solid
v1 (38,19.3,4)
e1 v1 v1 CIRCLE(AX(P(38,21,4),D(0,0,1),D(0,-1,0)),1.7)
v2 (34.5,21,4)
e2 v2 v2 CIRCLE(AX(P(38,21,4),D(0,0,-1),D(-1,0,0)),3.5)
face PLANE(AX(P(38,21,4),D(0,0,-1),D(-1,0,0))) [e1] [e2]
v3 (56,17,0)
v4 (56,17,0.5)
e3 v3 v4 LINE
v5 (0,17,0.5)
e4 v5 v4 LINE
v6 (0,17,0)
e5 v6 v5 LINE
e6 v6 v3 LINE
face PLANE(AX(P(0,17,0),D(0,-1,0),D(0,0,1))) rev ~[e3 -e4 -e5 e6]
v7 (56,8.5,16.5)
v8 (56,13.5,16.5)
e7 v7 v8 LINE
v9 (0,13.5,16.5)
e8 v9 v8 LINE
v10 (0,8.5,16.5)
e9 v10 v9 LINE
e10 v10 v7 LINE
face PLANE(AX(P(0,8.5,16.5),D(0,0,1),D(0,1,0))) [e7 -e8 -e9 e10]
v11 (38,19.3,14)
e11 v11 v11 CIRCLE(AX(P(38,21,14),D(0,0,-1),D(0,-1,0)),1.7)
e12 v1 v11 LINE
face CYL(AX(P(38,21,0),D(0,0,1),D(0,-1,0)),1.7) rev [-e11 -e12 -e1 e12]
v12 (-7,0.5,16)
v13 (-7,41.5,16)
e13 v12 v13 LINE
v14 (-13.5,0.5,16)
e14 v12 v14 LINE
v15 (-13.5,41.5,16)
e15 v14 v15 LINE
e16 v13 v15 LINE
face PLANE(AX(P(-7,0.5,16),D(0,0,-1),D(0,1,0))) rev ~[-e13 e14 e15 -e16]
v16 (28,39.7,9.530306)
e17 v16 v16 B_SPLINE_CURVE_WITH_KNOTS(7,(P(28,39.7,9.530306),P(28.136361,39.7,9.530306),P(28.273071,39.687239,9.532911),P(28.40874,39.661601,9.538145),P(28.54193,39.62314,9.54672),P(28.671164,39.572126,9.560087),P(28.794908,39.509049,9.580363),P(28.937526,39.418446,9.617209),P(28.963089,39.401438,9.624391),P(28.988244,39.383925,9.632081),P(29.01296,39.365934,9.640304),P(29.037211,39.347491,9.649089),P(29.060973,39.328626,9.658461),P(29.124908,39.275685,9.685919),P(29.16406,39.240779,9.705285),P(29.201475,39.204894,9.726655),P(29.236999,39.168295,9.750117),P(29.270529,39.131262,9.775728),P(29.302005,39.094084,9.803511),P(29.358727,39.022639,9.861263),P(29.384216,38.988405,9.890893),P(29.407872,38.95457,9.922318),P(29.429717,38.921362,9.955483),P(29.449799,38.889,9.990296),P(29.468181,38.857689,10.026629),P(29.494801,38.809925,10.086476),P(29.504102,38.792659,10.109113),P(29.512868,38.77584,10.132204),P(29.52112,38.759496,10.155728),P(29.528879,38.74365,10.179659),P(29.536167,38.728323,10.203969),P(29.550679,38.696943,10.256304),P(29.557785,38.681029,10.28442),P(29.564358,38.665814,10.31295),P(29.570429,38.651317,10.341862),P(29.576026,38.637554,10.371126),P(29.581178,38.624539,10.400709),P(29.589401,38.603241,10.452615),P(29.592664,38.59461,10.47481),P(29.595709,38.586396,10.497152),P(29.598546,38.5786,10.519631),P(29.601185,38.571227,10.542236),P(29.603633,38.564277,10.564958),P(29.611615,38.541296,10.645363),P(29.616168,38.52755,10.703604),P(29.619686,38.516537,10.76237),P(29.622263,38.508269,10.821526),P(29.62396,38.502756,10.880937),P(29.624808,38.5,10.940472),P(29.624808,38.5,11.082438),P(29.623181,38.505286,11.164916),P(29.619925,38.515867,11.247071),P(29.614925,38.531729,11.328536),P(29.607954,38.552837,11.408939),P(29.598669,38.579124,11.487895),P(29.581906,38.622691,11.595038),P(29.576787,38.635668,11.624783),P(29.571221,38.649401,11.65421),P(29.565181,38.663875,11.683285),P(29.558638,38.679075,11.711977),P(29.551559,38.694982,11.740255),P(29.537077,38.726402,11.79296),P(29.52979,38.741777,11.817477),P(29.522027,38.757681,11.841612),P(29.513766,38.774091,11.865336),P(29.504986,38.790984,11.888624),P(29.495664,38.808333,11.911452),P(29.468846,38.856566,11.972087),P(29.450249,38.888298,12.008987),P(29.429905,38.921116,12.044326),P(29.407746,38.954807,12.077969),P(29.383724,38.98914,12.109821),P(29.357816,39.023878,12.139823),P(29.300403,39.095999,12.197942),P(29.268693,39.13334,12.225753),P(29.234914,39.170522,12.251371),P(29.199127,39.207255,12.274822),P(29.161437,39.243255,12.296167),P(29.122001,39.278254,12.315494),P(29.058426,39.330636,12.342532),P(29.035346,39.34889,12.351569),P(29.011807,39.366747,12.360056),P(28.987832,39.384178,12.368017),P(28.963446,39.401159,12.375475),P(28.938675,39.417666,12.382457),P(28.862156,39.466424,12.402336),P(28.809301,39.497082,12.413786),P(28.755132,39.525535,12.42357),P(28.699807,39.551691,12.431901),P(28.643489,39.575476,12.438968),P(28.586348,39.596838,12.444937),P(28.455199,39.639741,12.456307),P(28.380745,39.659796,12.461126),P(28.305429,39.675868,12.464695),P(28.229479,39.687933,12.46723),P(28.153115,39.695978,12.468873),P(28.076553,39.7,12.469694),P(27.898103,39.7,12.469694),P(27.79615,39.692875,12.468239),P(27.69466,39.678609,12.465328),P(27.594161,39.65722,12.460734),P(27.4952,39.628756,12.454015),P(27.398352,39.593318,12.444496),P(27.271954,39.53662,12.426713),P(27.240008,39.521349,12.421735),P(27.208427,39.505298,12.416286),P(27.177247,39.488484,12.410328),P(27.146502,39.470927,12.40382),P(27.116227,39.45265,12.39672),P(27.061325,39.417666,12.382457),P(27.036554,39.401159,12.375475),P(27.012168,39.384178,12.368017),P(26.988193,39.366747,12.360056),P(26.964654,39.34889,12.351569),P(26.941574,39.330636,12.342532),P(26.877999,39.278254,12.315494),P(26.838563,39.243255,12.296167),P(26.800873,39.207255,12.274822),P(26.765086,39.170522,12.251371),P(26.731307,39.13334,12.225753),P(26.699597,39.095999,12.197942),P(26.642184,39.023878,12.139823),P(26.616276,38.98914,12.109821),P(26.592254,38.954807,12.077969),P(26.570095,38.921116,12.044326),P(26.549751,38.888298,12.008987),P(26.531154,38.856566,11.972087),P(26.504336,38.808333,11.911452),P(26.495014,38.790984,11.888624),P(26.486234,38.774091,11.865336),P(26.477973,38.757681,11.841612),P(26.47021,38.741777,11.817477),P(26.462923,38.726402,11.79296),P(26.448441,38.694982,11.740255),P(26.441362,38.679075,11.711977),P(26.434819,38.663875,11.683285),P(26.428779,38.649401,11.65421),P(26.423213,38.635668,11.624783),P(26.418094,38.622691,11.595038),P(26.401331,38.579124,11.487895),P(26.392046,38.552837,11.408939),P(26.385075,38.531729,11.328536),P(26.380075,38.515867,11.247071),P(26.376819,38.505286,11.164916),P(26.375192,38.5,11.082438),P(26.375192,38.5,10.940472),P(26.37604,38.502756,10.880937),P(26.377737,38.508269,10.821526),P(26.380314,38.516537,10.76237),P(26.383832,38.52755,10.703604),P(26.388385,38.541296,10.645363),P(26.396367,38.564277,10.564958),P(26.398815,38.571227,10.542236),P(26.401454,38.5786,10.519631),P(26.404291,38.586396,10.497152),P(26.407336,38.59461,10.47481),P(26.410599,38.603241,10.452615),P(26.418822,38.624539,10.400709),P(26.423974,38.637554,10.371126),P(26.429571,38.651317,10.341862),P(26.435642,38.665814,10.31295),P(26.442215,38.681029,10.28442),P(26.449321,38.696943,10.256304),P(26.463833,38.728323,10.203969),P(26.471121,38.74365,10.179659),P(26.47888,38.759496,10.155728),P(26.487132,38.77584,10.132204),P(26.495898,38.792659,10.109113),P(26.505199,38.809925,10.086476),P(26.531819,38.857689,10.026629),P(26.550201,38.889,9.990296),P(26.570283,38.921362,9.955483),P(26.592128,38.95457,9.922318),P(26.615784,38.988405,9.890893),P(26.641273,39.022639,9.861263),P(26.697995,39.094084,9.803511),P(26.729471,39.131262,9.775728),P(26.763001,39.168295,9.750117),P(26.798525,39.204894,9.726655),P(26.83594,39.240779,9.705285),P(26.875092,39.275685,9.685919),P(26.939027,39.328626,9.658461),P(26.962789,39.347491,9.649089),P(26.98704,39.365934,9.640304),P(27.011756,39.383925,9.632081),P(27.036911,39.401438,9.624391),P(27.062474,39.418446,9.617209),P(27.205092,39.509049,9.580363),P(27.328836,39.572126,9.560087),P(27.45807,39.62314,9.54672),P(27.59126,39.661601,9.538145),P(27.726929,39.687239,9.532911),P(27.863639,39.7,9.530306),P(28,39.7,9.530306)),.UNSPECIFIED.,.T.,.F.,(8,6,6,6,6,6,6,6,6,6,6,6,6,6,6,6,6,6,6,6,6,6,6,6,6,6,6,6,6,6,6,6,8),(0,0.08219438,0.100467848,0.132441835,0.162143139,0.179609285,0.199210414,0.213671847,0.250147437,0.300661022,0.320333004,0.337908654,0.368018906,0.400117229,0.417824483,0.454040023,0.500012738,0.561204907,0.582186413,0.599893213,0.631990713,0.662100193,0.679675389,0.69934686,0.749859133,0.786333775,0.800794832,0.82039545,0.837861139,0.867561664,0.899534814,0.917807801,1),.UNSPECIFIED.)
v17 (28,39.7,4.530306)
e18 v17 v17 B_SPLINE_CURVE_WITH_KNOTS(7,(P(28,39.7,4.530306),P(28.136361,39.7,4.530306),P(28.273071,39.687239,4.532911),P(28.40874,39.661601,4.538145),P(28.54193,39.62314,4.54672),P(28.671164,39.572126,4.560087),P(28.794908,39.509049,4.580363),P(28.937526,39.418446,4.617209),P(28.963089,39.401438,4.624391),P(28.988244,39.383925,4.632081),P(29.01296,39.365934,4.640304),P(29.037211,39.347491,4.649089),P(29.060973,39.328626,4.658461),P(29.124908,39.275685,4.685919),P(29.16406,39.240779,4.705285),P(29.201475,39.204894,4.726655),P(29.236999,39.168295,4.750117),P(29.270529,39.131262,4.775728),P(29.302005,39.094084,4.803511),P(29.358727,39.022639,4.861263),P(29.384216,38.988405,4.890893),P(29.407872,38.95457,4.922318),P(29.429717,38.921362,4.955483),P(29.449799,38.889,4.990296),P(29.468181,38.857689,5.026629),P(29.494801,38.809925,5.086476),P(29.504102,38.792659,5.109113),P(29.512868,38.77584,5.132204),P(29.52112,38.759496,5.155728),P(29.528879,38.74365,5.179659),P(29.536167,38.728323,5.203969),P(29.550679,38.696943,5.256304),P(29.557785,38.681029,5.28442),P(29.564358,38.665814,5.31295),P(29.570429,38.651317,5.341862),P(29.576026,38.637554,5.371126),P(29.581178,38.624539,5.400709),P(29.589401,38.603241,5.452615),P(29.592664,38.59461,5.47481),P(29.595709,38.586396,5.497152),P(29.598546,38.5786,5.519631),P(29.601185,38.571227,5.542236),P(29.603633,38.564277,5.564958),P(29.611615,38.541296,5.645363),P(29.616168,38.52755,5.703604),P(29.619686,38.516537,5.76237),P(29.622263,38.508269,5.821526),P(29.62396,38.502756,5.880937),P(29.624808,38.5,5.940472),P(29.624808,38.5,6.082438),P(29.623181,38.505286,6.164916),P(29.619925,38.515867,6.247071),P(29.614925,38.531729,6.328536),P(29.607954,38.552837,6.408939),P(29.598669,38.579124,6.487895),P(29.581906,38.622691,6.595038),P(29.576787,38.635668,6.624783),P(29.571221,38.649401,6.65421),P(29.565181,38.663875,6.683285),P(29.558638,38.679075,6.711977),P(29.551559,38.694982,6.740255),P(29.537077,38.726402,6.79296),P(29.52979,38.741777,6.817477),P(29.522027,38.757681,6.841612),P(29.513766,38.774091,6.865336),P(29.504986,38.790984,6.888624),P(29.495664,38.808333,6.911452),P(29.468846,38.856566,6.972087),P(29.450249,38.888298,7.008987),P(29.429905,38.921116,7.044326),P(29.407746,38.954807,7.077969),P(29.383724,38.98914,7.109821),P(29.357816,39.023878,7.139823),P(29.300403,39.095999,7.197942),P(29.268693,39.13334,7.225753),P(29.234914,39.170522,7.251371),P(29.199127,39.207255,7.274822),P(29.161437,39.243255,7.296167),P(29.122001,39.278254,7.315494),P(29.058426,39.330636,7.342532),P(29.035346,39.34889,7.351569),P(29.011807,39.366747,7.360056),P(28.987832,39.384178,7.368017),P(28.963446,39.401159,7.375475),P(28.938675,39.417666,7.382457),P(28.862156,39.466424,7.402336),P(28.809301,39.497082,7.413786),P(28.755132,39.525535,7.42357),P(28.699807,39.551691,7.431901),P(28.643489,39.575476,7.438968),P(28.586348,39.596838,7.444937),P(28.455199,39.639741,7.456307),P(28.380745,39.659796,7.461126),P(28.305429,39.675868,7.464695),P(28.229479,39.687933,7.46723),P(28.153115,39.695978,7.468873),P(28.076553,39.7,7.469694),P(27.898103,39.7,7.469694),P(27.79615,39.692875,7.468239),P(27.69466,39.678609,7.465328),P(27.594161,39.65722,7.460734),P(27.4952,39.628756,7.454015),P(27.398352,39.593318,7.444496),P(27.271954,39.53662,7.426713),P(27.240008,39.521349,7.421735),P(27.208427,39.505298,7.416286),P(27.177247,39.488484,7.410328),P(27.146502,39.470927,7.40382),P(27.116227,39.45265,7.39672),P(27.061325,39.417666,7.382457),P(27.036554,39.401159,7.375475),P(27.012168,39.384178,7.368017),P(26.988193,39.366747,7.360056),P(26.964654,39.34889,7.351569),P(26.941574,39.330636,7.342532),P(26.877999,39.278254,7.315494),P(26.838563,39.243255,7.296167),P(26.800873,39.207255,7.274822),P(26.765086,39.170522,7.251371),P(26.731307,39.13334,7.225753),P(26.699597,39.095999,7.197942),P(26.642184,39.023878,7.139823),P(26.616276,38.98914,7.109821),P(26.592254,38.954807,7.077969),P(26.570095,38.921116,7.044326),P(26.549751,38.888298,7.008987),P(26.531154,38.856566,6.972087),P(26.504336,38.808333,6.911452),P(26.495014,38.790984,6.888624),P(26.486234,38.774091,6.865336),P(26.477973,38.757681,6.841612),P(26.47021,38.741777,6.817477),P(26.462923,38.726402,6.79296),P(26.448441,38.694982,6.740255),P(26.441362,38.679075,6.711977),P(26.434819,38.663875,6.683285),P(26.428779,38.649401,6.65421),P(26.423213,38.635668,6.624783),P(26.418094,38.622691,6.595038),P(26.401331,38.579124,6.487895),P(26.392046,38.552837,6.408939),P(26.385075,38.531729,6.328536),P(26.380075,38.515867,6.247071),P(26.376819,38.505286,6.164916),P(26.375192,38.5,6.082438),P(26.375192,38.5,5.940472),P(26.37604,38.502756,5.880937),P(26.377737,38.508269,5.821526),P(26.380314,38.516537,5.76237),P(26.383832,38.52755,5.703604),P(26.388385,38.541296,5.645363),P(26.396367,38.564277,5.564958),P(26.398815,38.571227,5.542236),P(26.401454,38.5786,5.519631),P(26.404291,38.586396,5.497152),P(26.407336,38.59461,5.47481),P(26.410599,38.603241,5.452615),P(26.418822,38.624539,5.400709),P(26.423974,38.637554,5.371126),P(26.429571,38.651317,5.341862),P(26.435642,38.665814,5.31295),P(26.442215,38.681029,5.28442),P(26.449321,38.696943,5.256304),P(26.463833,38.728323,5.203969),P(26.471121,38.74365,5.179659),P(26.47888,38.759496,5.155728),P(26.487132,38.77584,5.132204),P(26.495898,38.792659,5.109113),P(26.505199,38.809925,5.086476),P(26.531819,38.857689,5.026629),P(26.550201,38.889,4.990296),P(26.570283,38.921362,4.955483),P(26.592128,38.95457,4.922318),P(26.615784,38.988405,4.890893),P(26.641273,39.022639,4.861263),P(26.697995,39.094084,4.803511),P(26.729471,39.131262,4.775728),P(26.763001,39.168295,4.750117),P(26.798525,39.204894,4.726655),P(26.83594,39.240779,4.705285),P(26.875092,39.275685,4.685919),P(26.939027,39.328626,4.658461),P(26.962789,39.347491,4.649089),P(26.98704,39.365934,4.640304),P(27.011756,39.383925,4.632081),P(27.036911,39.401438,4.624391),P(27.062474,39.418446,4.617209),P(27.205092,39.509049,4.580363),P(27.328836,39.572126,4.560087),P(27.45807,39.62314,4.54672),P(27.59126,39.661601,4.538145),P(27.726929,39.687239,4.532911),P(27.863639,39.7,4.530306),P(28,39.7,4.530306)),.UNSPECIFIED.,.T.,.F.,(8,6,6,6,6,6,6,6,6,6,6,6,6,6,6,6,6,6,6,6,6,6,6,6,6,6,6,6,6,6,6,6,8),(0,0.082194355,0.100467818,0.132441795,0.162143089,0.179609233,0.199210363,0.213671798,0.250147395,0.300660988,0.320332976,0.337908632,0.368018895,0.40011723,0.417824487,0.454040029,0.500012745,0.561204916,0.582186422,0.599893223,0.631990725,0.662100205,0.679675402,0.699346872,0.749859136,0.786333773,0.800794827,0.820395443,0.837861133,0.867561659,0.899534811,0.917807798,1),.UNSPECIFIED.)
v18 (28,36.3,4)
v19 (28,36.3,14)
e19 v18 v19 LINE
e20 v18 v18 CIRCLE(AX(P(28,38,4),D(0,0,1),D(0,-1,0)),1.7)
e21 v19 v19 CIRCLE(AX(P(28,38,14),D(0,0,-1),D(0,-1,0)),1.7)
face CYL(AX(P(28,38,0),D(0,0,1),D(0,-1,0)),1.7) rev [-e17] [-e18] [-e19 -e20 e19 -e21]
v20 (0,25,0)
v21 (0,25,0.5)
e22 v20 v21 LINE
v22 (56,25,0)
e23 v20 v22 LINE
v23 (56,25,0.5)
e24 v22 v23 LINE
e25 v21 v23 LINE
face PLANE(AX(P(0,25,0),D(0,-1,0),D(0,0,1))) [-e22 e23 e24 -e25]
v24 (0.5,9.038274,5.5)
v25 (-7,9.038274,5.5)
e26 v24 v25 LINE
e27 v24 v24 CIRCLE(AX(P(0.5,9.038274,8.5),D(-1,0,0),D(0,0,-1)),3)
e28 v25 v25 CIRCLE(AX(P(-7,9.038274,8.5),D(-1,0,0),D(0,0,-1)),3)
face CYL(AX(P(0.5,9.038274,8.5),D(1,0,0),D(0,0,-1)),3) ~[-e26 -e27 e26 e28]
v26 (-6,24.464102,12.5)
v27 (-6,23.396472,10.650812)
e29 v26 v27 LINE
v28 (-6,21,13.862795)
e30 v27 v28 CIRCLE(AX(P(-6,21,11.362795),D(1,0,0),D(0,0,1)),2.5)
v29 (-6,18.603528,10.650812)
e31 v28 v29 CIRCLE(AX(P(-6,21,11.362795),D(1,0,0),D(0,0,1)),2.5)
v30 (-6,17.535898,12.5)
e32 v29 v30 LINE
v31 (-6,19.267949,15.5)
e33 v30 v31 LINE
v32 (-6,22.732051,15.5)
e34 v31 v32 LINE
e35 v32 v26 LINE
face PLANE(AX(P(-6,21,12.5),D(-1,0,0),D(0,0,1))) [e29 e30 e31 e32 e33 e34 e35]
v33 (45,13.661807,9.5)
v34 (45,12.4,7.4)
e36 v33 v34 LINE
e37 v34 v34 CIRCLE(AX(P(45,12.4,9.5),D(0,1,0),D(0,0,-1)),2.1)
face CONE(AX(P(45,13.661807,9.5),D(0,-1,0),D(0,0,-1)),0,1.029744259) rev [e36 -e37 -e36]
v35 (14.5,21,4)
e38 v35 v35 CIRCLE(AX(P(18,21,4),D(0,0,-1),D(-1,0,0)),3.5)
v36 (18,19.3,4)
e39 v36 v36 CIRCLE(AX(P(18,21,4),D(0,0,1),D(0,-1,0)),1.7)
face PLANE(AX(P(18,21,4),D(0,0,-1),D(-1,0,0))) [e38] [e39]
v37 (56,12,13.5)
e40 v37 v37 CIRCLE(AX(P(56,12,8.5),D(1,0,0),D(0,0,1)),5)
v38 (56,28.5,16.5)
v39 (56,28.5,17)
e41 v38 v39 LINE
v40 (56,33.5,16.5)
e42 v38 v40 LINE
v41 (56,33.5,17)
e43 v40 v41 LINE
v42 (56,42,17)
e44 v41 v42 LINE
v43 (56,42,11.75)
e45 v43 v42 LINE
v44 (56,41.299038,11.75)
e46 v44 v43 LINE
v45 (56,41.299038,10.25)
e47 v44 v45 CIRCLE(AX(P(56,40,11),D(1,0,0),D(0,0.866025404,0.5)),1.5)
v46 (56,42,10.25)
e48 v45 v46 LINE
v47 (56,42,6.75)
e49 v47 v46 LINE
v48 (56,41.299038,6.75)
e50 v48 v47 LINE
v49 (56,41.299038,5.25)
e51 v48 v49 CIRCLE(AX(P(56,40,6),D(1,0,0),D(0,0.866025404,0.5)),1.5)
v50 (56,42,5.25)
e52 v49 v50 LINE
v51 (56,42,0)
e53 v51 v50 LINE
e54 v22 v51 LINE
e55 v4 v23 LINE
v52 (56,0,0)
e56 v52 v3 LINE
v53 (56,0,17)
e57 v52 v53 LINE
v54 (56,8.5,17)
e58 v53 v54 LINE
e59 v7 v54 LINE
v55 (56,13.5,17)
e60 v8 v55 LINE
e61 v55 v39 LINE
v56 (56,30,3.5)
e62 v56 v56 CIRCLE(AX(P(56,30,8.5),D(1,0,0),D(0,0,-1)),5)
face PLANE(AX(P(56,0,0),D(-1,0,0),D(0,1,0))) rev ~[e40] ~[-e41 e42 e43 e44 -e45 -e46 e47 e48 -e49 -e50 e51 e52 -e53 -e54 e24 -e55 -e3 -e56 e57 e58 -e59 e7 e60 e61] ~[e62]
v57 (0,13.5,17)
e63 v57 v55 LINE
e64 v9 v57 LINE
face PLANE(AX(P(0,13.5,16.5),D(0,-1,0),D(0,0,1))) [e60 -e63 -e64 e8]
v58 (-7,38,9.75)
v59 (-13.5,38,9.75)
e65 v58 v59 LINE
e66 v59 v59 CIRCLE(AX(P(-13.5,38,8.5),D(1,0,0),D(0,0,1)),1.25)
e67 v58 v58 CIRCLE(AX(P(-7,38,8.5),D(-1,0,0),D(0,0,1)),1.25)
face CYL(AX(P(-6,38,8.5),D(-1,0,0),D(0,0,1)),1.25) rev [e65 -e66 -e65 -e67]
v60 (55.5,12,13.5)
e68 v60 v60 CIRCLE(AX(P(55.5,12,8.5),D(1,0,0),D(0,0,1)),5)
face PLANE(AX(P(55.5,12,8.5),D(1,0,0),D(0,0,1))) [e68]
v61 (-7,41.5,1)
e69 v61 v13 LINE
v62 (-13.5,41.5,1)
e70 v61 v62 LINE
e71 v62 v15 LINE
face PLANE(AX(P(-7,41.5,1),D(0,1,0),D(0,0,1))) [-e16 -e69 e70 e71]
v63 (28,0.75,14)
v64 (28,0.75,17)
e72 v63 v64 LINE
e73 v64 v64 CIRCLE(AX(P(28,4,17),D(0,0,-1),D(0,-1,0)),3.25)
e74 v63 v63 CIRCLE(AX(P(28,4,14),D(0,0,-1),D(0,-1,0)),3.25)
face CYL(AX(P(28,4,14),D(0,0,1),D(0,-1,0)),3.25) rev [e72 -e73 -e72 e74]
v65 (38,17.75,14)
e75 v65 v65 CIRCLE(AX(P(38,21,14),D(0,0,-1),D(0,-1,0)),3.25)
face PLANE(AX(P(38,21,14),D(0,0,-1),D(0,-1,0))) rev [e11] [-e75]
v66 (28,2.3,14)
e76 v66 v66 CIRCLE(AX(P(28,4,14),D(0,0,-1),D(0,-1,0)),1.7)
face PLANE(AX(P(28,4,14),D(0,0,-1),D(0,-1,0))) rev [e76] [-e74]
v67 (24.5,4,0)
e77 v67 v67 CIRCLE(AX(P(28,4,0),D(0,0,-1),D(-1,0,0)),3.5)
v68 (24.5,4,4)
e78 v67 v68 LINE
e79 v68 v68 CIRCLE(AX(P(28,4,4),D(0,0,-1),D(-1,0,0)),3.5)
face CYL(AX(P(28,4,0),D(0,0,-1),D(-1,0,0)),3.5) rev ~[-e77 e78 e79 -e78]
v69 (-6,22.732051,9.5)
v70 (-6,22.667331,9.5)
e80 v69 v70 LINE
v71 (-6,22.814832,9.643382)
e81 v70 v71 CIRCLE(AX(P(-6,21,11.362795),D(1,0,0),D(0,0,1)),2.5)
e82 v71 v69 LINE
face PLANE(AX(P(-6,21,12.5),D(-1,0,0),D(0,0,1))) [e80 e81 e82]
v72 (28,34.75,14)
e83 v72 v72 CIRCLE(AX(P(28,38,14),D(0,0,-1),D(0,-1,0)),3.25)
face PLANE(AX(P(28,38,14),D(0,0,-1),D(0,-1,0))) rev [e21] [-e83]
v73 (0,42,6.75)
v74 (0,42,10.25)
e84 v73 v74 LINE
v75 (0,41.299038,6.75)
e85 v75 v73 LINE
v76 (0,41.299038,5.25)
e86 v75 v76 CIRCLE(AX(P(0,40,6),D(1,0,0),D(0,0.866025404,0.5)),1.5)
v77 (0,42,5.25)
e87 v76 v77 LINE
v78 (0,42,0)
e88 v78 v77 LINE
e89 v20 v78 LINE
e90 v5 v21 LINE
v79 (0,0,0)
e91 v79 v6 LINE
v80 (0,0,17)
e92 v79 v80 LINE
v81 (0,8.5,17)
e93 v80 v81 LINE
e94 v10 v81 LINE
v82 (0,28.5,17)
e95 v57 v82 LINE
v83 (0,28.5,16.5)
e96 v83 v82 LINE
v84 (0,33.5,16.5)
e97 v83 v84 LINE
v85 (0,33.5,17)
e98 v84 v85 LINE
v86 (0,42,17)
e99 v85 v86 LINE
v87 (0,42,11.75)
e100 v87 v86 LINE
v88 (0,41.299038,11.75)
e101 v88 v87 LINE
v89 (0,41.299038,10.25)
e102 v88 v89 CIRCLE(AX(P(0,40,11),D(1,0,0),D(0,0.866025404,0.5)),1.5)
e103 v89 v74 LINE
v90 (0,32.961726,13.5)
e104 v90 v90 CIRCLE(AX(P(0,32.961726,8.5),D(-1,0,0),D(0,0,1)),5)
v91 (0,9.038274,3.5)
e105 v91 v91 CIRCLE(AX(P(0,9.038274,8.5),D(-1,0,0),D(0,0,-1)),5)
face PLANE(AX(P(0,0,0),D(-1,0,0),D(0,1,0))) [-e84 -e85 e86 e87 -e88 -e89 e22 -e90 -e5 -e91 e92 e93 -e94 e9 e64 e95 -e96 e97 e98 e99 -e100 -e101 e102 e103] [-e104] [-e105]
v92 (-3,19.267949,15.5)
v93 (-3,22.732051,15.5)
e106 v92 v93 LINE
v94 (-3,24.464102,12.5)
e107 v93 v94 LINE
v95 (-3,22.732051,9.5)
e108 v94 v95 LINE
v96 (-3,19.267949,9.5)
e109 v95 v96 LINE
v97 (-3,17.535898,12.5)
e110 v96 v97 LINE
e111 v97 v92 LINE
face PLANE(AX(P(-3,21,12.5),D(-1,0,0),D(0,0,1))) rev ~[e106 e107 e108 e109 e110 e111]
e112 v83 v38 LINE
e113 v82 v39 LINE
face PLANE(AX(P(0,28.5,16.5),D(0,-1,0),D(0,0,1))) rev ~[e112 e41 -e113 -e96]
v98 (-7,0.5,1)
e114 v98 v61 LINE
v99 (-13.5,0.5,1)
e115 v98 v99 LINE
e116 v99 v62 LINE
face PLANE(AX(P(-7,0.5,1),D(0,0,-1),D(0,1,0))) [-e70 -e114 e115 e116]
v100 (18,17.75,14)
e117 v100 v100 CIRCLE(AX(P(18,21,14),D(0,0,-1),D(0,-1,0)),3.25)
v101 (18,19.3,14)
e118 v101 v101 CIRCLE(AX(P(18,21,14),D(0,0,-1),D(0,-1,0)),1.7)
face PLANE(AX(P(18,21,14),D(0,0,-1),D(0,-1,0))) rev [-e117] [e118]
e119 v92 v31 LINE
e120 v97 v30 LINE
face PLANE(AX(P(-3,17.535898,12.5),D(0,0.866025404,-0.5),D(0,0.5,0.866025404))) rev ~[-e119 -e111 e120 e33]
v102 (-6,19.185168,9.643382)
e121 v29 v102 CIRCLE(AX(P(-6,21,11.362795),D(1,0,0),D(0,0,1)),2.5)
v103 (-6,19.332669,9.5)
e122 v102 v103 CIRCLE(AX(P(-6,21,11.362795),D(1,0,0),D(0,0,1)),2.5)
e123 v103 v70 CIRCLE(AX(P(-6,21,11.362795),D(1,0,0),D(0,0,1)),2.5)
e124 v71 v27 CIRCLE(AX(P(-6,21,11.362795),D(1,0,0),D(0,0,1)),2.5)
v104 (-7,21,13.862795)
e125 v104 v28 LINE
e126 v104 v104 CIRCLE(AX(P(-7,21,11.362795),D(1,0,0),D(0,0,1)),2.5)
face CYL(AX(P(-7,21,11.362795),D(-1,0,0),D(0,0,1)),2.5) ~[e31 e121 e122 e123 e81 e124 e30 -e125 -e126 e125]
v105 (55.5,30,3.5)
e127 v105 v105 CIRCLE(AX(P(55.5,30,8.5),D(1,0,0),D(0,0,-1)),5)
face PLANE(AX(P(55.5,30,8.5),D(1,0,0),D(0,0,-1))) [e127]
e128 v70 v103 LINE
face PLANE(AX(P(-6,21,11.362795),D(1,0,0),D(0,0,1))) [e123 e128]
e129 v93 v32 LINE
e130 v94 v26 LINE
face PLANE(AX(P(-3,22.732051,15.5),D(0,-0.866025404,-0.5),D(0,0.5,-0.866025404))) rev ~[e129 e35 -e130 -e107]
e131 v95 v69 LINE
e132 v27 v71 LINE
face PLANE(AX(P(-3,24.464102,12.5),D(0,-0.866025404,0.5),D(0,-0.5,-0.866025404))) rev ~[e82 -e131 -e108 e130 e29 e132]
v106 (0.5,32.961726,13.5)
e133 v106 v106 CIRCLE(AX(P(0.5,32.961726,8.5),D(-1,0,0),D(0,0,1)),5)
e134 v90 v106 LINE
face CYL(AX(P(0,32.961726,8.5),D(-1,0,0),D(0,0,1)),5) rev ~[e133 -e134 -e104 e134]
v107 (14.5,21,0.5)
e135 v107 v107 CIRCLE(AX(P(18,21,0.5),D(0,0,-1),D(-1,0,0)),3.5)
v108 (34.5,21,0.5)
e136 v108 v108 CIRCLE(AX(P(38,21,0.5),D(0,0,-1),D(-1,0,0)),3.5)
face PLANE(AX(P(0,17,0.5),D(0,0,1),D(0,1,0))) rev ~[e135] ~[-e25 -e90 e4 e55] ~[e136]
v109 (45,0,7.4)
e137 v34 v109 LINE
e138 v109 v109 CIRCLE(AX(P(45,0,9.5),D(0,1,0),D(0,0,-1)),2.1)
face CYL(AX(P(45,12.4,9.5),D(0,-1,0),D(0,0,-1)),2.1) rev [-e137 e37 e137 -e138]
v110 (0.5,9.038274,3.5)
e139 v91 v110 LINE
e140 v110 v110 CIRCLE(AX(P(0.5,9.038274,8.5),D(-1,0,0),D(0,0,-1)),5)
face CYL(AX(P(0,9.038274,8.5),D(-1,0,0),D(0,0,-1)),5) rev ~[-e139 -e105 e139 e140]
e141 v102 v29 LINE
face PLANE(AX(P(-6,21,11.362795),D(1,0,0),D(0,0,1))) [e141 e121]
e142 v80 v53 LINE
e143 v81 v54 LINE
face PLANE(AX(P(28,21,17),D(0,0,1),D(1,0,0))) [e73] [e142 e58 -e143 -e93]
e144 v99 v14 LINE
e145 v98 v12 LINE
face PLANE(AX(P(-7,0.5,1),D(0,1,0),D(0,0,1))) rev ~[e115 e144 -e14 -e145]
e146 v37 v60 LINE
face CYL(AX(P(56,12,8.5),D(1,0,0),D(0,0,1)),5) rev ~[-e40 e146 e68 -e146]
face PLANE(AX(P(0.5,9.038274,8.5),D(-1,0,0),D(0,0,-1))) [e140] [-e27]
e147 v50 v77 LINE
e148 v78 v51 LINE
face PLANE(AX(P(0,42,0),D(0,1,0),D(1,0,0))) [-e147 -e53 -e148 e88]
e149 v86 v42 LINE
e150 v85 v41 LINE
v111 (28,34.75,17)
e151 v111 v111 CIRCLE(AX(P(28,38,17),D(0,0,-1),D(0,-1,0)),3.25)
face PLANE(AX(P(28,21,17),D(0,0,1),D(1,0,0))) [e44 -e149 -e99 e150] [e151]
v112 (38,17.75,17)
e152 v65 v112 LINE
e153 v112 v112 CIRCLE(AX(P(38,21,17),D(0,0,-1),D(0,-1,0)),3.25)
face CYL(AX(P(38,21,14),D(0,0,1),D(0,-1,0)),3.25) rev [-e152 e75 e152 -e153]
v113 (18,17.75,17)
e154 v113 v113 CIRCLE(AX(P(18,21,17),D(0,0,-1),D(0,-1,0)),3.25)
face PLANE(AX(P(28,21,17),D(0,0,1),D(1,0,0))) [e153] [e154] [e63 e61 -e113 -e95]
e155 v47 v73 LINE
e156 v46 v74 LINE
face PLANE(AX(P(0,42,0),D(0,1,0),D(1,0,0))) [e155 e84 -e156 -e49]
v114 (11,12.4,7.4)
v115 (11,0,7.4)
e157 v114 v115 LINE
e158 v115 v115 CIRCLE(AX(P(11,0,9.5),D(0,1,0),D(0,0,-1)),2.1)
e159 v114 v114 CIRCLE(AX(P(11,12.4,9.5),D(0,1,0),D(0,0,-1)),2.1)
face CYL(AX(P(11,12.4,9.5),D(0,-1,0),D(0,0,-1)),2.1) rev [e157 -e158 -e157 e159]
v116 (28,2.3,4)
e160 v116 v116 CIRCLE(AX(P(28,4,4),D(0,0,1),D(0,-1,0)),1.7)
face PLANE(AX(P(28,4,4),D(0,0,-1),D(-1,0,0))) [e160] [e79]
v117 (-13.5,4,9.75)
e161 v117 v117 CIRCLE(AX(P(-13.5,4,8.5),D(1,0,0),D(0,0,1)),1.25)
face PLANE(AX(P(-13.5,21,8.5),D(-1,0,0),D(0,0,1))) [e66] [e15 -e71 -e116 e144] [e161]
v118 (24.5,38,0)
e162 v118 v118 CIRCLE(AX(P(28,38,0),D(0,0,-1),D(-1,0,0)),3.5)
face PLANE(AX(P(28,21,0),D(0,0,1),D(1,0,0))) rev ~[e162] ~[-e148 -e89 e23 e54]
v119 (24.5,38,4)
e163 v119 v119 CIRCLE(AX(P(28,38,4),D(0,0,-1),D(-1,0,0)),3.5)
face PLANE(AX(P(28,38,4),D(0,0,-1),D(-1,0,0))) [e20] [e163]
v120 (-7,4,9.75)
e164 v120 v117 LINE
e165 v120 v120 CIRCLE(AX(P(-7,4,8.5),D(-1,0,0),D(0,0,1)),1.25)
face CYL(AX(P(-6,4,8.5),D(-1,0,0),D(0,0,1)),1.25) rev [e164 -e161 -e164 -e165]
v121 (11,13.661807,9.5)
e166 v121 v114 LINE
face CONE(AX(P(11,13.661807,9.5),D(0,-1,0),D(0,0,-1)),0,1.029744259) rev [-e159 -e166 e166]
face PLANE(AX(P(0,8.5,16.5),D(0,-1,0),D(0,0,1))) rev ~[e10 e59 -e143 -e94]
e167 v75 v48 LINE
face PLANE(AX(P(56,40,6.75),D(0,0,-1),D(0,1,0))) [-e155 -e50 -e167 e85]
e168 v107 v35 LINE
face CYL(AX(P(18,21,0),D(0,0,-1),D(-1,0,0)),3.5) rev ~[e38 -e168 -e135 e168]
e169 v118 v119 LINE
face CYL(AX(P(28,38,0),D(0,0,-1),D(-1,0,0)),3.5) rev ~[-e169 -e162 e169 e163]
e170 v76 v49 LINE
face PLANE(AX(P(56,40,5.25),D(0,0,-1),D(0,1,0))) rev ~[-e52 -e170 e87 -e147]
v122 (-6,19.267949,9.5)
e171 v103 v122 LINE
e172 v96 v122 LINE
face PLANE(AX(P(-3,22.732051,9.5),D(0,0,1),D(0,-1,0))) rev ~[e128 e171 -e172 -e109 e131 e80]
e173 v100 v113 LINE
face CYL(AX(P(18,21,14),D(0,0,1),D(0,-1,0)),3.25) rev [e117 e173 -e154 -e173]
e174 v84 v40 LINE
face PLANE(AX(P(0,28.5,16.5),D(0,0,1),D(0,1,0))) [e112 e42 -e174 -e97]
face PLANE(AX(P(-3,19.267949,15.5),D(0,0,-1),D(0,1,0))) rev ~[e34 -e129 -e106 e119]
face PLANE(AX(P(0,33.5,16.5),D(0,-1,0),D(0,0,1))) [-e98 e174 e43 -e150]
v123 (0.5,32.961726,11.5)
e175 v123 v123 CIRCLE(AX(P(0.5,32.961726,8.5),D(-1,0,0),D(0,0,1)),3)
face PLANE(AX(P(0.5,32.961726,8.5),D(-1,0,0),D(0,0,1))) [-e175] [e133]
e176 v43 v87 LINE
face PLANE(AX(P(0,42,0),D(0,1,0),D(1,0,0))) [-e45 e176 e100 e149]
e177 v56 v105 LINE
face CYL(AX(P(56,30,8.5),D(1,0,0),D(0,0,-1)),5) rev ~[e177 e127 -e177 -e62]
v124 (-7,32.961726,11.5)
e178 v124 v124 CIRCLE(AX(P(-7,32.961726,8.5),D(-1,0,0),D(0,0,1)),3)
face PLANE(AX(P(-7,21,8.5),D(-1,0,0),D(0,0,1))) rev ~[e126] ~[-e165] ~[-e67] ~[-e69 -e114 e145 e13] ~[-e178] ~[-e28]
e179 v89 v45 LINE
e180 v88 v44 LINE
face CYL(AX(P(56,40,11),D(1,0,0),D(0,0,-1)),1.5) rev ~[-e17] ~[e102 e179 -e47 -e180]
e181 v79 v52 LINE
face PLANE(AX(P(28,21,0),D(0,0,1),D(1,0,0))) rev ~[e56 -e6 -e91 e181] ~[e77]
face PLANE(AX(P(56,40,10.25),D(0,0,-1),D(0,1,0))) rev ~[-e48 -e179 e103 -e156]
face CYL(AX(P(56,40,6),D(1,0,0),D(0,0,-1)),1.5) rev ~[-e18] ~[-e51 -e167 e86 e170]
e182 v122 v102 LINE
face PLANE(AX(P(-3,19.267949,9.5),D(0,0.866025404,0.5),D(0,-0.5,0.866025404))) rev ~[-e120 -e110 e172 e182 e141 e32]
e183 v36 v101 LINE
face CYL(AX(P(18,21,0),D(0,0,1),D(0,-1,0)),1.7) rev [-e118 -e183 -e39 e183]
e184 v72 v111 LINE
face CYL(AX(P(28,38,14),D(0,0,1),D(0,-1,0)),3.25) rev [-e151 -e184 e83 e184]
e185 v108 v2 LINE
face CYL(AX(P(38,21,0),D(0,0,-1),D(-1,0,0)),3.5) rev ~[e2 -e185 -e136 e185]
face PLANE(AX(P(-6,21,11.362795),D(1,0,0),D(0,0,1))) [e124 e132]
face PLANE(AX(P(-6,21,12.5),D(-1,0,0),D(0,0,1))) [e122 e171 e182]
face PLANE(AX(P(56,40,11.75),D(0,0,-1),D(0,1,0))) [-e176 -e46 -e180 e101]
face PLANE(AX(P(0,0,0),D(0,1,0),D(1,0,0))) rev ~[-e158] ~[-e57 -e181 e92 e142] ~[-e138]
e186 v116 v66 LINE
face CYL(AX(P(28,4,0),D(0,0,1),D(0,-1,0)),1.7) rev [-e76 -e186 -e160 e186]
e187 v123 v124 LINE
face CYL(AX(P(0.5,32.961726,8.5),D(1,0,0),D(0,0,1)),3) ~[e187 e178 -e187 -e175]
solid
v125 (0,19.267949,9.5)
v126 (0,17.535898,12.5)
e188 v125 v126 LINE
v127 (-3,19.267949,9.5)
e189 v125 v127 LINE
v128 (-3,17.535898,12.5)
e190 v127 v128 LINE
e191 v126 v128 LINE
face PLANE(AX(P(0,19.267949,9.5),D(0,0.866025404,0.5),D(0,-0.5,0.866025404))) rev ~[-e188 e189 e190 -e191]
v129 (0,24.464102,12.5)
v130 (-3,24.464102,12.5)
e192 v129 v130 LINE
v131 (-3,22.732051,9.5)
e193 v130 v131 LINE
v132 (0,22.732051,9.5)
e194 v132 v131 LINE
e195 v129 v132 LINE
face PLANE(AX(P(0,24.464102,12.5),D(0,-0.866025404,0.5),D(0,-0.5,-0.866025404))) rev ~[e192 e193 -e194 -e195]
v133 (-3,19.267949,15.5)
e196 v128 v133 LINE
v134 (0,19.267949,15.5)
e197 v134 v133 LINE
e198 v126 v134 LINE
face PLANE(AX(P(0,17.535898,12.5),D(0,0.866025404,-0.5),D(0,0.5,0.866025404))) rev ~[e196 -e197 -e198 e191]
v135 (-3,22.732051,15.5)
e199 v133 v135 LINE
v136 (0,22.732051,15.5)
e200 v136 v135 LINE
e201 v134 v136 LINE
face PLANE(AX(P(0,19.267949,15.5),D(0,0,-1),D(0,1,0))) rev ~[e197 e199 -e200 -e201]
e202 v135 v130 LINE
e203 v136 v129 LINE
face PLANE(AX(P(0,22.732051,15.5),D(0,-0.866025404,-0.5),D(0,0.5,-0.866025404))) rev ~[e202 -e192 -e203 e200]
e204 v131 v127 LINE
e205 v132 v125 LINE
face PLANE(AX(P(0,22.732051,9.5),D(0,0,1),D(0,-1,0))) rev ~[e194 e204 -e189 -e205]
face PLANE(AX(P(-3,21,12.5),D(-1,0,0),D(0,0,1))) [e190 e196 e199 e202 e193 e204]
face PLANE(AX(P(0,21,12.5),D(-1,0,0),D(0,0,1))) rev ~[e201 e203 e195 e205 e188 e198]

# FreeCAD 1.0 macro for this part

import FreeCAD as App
import Part
import Sketcher
from FreeCAD import Vector
Q = App.Units.Quantity


def add_polygon(sketch, points):
    """Adds a closed chain of lines whose ends are joined by coincident constraints."""
    first, n = sketch.GeometryCount, len(points)
    for a, b in zip(points, points[1:] + points[:1]):
        sketch.addGeometry(Part.LineSegment(App.Vector(*a, 0), App.Vector(*b, 0)), False)
    for i in range(n):
        sketch.addConstraint(Sketcher.Constraint("Coincident", first + i, 2, first + (i + 1) % n, 1))

doc = App.newDocument("Part")
params = doc.addObject("Spreadsheet::Sheet", "Params")
for row, (alias, value) in enumerate([
    ("sketch1_width", "56 mm"),
    ("sketch1_height", "42 mm"),
    ("pad1_length", "17 mm"),
    ("sketch2_diameter", "10 mm"),
    ("pocket1_length", "0.5 mm"),
    ("sketch3_diameter", "10 mm"),
    ("pocket2_length", "0.5 mm"),
    ("sketch4_diameter", "6 mm"),
    ("pad2_length", "7.5 mm"),
    ("sketch5_width", "41 mm"),
    ("sketch5_height", "15 mm"),
    ("pad3_length", "6.5 mm"),
    ("pad4_length", "3 mm"),
    ("pad5_length", "3 mm"),
    ("sketch8_diameter", "5 mm"),
    ("pad6_length", "1 mm"),
    ("sketch9_width", "7.5 mm"),
    ("sketch9_height", "1.25 mm"),
    ("groove_angle", "360 deg"),
    ("linearpattern_pitch", "34 mm"),
    ("sketch10_diameter", "3 mm"),
    ("pocket3_length", "56 mm"),
    ("sketch11_width", "2 mm"),
    ("sketch11_height", "1.5 mm"),
    ("pocket4_length", "56 mm"),
    ("sketch12_width", "12.4 mm"),
    ("sketch12_height", "2.1 mm"),
    ("groove2_angle", "360 deg"),
    ("linearpattern2_pitch", "34 mm"),
    ("sketch13_width", "8 mm"),
    ("sketch13_width2", "5 mm"),
    ("sketch13_height", "0.5 mm"),
    ("pocket5_length", "56 mm"),
    ("sketch14_height", "17 mm"),
    ("sketch14_height2", "3 mm"),
    ("sketch14_width", "1.7 mm"),
    ("sketch14_width2", "3.25 mm"),
    ("groove3_angle", "360 deg"),
    ("linearpattern3_pitch", "19.723083 mm"),
    ("linearpattern4_pitch", "19.723083 mm"),
    ("linearpattern5_pitch", "20 mm"),
    ("sketch15_diameter", "7 mm"),
    ("pocket6_length", "4 mm"),
], start=1):
    params.set(f"A{row}", alias)
    params.set(f"B{row}", "=" + value)
    params.setAlias(f"B{row}", alias)

body = doc.addObject("PartDesign::Body", "Body")

sketch1 = body.newObject("Sketcher::SketchObject", "Sketch")
sketch1.AttachmentSupport = (doc.getObject("XY_Plane"), [""])
sketch1.MapMode = "FlatFace"
add_polygon(sketch1, [(0, 42), (0, 0), (56, 0), (56, 42)])
sketch1.addConstraint([
    Sketcher.Constraint("Vertical", 0),
    Sketcher.Constraint("Horizontal", 1),
    Sketcher.Constraint("Vertical", 2),
    Sketcher.Constraint("Horizontal", 3),
    Sketcher.Constraint("Coincident", 0, 2, -1, 1),
    Sketcher.Constraint("DistanceX", 1, 1, 1, 2, Q("56 mm")),
    Sketcher.Constraint("DistanceY", 0, 2, 0, 1, Q("42 mm")),
])
sketch1.setExpression("Constraints[9]", "Params.sketch1_width")
sketch1.setExpression("Constraints[10]", "Params.sketch1_height")
pad1 = body.newObject("PartDesign::Pad", "Pad")
pad1.Profile = sketch1
pad1.setExpression("Length", "Params.pad1_length")

sketch2 = body.newObject("Sketcher::SketchObject", "Sketch001")
sketch2.AttachmentSupport = (doc.getObject("YZ_Plane"), [""])
sketch2.MapMode = "FlatFace"
sketch2.addGeometry([
    Part.Circle(Vector(33, 8, 0), Vector(0, 0, 1), 5),
    Part.Circle(Vector(9, 8, 0), Vector(0, 0, 1), 5),
], False)
sketch2.addConstraint([
    Sketcher.Constraint("Equal", 0, 1),
    Sketcher.Constraint("Horizontal", 0, 3, 1, 3),
    Sketcher.Constraint("Diameter", 0, Q("10 mm")),
    Sketcher.Constraint("DistanceY", -1, 1, 0, 3, Q("8.5 mm")),
    Sketcher.Constraint("DistanceX", 1, 3, 0, 3, Q("23.923451 mm")),
    Sketcher.Constraint("DistanceX", -1, 1, 0, 3, Q("32.961726 mm")),
])
sketch2.setExpression("Constraints[2]", "Params.sketch2_diameter")
pocket1 = body.newObject("PartDesign::Pocket", "Pocket")
pocket1.Profile = sketch2
pocket1.setExpression("Length", "Params.pocket1_length")
pocket1.Reversed = True

sketch3 = body.newObject("Sketcher::SketchObject", "Sketch002")
sketch3.AttachmentSupport = (doc.getObject("YZ_Plane"), [""])
sketch3.MapMode = "FlatFace"
sketch3.AttachmentOffset = App.Placement(Vector(0, 0, 56), App.Rotation())
sketch3.addGeometry([
    Part.Circle(Vector(30, 8, 0), Vector(0, 0, 1), 5),
    Part.Circle(Vector(12, 8, 0), Vector(0, 0, 1), 5),
], False)
sketch3.addConstraint([
    Sketcher.Constraint("Equal", 0, 1),
    Sketcher.Constraint("Horizontal", 0, 3, 1, 3),
    Sketcher.Constraint("Diameter", 0, Q("10 mm")),
    Sketcher.Constraint("DistanceX", -1, 1, 0, 3, Q("30 mm")),
    Sketcher.Constraint("DistanceX", -1, 1, 1, 3, Q("12 mm")),
    Sketcher.Constraint("DistanceY", -1, 1, 0, 3, Q("8.5 mm")),
])
sketch3.setExpression("Constraints[2]", "Params.sketch3_diameter")
pocket2 = body.newObject("PartDesign::Pocket", "Pocket001")
pocket2.Profile = sketch3
pocket2.setExpression("Length", "Params.pocket2_length")

sketch4 = body.newObject("Sketcher::SketchObject", "Sketch003")
sketch4.AttachmentSupport = (doc.getObject("YZ_Plane"), [""])
sketch4.MapMode = "FlatFace"
sketch4.AttachmentOffset = App.Placement(Vector(0, 0, 0.5), App.Rotation())
sketch4.addGeometry([
    Part.Circle(Vector(33, 8.5, 0), Vector(0, 0, 1), 3),
    Part.Circle(Vector(9, 8.5, 0), Vector(0, 0, 1), 3),
], False)
sketch4.addConstraint([
    Sketcher.Constraint("Equal", 0, 1),
    Sketcher.Constraint("Horizontal", 0, 3, 1, 3),
    Sketcher.Constraint("Diameter", 0, Q("6 mm")),
    Sketcher.Constraint("DistanceY", -1, 1, 0, 3, Q("8.5 mm")),
    Sketcher.Constraint("DistanceX", 1, 3, 0, 3, Q("23.923451 mm")),
    Sketcher.Constraint("DistanceX", -1, 1, 0, 3, Q("32.961726 mm")),
])
sketch4.setExpression("Constraints[2]", "Params.sketch4_diameter")
pad2 = body.newObject("PartDesign::Pad", "Pad001")
pad2.Profile = sketch4
pad2.setExpression("Length", "Params.pad2_length")
pad2.Reversed = True

sketch5 = body.newObject("Sketcher::SketchObject", "Sketch004")
sketch5.AttachmentSupport = (doc.getObject("YZ_Plane"), [""])
sketch5.MapMode = "FlatFace"
sketch5.AttachmentOffset = App.Placement(Vector(0, 0, -7), App.Rotation())
add_polygon(sketch5, [(42, 1), (0, 1), (0, 16), (42, 16)])
sketch5.addConstraint([
    Sketcher.Constraint("Horizontal", 0),
    Sketcher.Constraint("Vertical", 1),
    Sketcher.Constraint("Horizontal", 2),
    Sketcher.Constraint("Vertical", 3),
    Sketcher.Constraint("DistanceX", 0, 2, 0, 1, Q("41 mm")),
    Sketcher.Constraint("DistanceY", 1, 1, 1, 2, Q("15 mm")),
    Sketcher.Constraint("DistanceY", -1, 1, 0, 2, Q("1 mm")),
    Sketcher.Constraint("DistanceX", -1, 1, 0, 2, Q("0.5 mm")),
])
sketch5.setExpression("Constraints[8]", "Params.sketch5_width")
sketch5.setExpression("Constraints[9]", "Params.sketch5_height")
pad3 = body.newObject("PartDesign::Pad", "Pad002")
pad3.Profile = sketch5
pad3.setExpression("Length", "Params.pad3_length")
pad3.Reversed = True
body2 = doc.addObject("PartDesign::Body", "Body001")

sketch6 = body2.newObject("Sketcher::SketchObject", "Sketch005")
sketch6.AttachmentSupport = (doc.getObject("YZ_Plane001"), [""])
sketch6.MapMode = "FlatFace"
add_polygon(sketch6, [(19.3, 15.5), (22.7, 15.5), (24.5, 12.5), (22.7, 9.5), (19.3, 9.5), (17.5, 12.5)])
sketch6.addConstraint([
    Sketcher.Constraint("Horizontal", 0),
    Sketcher.Constraint("Horizontal", 3),
    Sketcher.Constraint("Parallel", 1, 4),
    Sketcher.Constraint("Parallel", 2, 5),
    Sketcher.Constraint("Horizontal", 1, 2, 4, 2),
    Sketcher.Constraint("Vertical", 0, 2, 2, 2),
    Sketcher.Constraint("Vertical", 3, 2, 5, 2),
    Sketcher.Constraint("Angle", 1, Q("-60 deg")),
    Sketcher.Constraint("DistanceY", 1, 2, 0, 2, Q("3 mm")),
    Sketcher.Constraint("DistanceY", -1, 1, 0, 2, Q("15.5 mm")),
    Sketcher.Constraint("DistanceX", 0, 1, 0, 2, Q("3.464102 mm")),
    Sketcher.Constraint("DistanceX", -1, 1, 1, 2, Q("24.464102 mm")),
])
pad4 = body2.newObject("PartDesign::Pad", "Pad003")
pad4.Profile = sketch6
pad4.setExpression("Length", "Params.pad4_length")
pad4.Reversed = True
body3 = doc.addObject("PartDesign::Body", "Body002")

sketch7 = body3.newObject("Sketcher::SketchObject", "Sketch006")
sketch7.AttachmentSupport = (doc.getObject("YZ_Plane002"), [""])
sketch7.MapMode = "FlatFace"
sketch7.AttachmentOffset = App.Placement(Vector(0, 0, -3), App.Rotation())
add_polygon(sketch7, [(19.3, 15.5), (22.7, 15.5), (24.5, 12.5), (22.7, 9.5), (19.3, 9.5), (17.5, 12.5)])
sketch7.addConstraint([
    Sketcher.Constraint("Horizontal", 0),
    Sketcher.Constraint("Horizontal", 3),
    Sketcher.Constraint("Parallel", 1, 4),
    Sketcher.Constraint("Parallel", 2, 5),
    Sketcher.Constraint("Horizontal", 1, 2, 4, 2),
    Sketcher.Constraint("Vertical", 0, 2, 2, 2),
    Sketcher.Constraint("Vertical", 3, 2, 5, 2),
    Sketcher.Constraint("Angle", 1, Q("-60 deg")),
    Sketcher.Constraint("DistanceY", 1, 2, 0, 2, Q("3 mm")),
    Sketcher.Constraint("DistanceY", -1, 1, 0, 2, Q("15.5 mm")),
    Sketcher.Constraint("DistanceX", 0, 1, 0, 2, Q("3.464102 mm")),
    Sketcher.Constraint("DistanceX", -1, 1, 1, 2, Q("24.464102 mm")),
])
pad5 = body3.newObject("PartDesign::Pad", "Pad004")
pad5.Profile = sketch7
pad5.setExpression("Length", "Params.pad5_length")
pad5.Reversed = True
body.AllowCompound = True
doc.recompute()

boolean = body.newObject("PartDesign::Boolean", "Boolean")
boolean.Type = "Fuse"
boolean.addObjects([body3])

sketch8 = body.newObject("Sketcher::SketchObject", "Sketch007")
sketch8.AttachmentSupport = (doc.getObject("YZ_Plane"), [""])
sketch8.MapMode = "FlatFace"
sketch8.AttachmentOffset = App.Placement(Vector(0, 0, -7), App.Rotation())
sketch8.addGeometry(Part.Circle(Vector(21, 11.4, 0), Vector(0, 0, 1), 2.5), False)
sketch8.addConstraint([
    Sketcher.Constraint("Diameter", 0, Q("5 mm")),
    Sketcher.Constraint("DistanceX", -1, 1, 0, 3, Q("21 mm")),
    Sketcher.Constraint("DistanceY", -1, 1, 0, 3, Q("11.362795 mm")),
])
sketch8.setExpression("Constraints[0]", "Params.sketch8_diameter")
pad6 = body.newObject("PartDesign::Pad", "Pad005")
pad6.Profile = sketch8
pad6.setExpression("Length", "Params.pad6_length")

sketch9 = body.newObject("Sketcher::SketchObject", "Sketch008")
sketch9.AttachmentSupport = (doc.getObject("XZ_Plane"), [""])
sketch9.MapMode = "FlatFace"
sketch9.AttachmentOffset = App.Placement(Vector(0, 0, -38), App.Rotation())
add_polygon(sketch9, [(-5.2, 8.5), (-13.5, 8.5), (-13.5, 9.8), (-6, 9.8)])
sketch9.addGeometry(Part.LineSegment(Vector(-13.5, 8.5, 0), Vector(-5.2, 8.5, 0)), True)
sketch9.addConstraint([
    Sketcher.Constraint("Horizontal", 0),
    Sketcher.Constraint("Vertical", 1),
    Sketcher.Constraint("Horizontal", 2),
    Sketcher.Constraint("Horizontal", 4),
    Sketcher.Constraint("Coincident", 4, 1, 0, 2),
    Sketcher.Constraint("Equal", 0, 4),
    Sketcher.Constraint("Angle", 3, Q("-59 deg")),
    Sketcher.Constraint("DistanceX", 2, 1, 2, 2, Q("7.5 mm")),
    Sketcher.Constraint("DistanceX", 2, 2, -1, 1, Q("6 mm")),
    Sketcher.Constraint("DistanceY", 1, 1, 1, 2, Q("1.25 mm")),
    Sketcher.Constraint("DistanceY", -1, 1, 0, 2, Q("8.5 mm")),
])
sketch9.setExpression("Constraints[11]", "Params.sketch9_width")
sketch9.setExpression("Constraints[13]", "Params.sketch9_height")
groove = body.newObject("PartDesign::Groove", "Groove")
groove.Profile = sketch9
groove.ReferenceAxis = (sketch9, ["Axis0"])
groove.setExpression("Angle", "Params.groove_angle")
doc.recompute()

linearpattern = body.newObject("PartDesign::LinearPattern", "LinearPattern")
linearpattern.Originals = [groove]
linearpattern.Direction = (doc.getObject("Y_Axis"), [""])
linearpattern.Mode = "offset"
linearpattern.setExpression("Offset", "Params.linearpattern_pitch")
linearpattern.Occurrences = 2
linearpattern.Reversed = True
body.Tip = linearpattern

sketch10 = body.newObject("Sketcher::SketchObject", "Sketch009")
sketch10.AttachmentSupport = (doc.getObject("YZ_Plane"), [""])
sketch10.MapMode = "FlatFace"
sketch10.AttachmentOffset = App.Placement(Vector(0, 0, 56), App.Rotation())
sketch10.addGeometry([
    Part.Circle(Vector(40, 11, 0), Vector(0, 0, 1), 1.5),
    Part.Circle(Vector(40, 6, 0), Vector(0, 0, 1), 1.5),
], False)
sketch10.addConstraint([
    Sketcher.Constraint("Equal", 0, 1),
    Sketcher.Constraint("Vertical", 0, 3, 1, 3),
    Sketcher.Constraint("Diameter", 0, Q("3 mm")),
    Sketcher.Constraint("DistanceX", -1, 1, 0, 3, Q("40 mm")),
    Sketcher.Constraint("DistanceY", -1, 1, 0, 3, Q("11 mm")),
    Sketcher.Constraint("DistanceY", -1, 1, 1, 3, Q("6 mm")),
])
sketch10.setExpression("Constraints[2]", "Params.sketch10_diameter")
pocket3 = body.newObject("PartDesign::Pocket", "Pocket002")
pocket3.Profile = sketch10
pocket3.setExpression("Length", "Params.pocket3_length")

sketch11 = body.newObject("Sketcher::SketchObject", "Sketch010")
sketch11.AttachmentSupport = (doc.getObject("YZ_Plane"), [""])
sketch11.MapMode = "FlatFace"
sketch11.AttachmentOffset = App.Placement(Vector(0, 0, 56), App.Rotation())
add_polygon(sketch11, [(42, 11.8), (40, 11.8), (40, 10.2), (42, 10.2)])
add_polygon(sketch11, [(42, 6.8), (40, 6.8), (40, 5.2), (42, 5.2)])
sketch11.addConstraint([
    Sketcher.Constraint("Horizontal", 0),
    Sketcher.Constraint("Vertical", 1),
    Sketcher.Constraint("Horizontal", 2),
    Sketcher.Constraint("Vertical", 3),
    Sketcher.Constraint("Horizontal", 4),
    Sketcher.Constraint("Vertical", 5),
    Sketcher.Constraint("Horizontal", 6),
    Sketcher.Constraint("Vertical", 7),
    Sketcher.Constraint("Vertical", 1, 2, 4, 2),
    Sketcher.Constraint("Vertical", 3, 2, 6, 2),
    Sketcher.Constraint("Equal", 3, 5),
    Sketcher.Constraint("DistanceX", 0, 2, 0, 1, Q("2 mm")),
    Sketcher.Constraint("DistanceY", 1, 2, 1, 1, Q("1.5 mm")),
    Sketcher.Constraint("DistanceX", -1, 1, 0, 2, Q("40 mm")),
    Sketcher.Constraint("DistanceY", 4, 2, 0, 2, Q("5 mm")),
    Sketcher.Constraint("DistanceY", -1, 1, 0, 2, Q("11.75 mm")),
])
sketch11.setExpression("Constraints[19]", "Params.sketch11_width")
sketch11.setExpression("Constraints[20]", "Params.sketch11_height")
pocket4 = body.newObject("PartDesign::Pocket", "Pocket003")
pocket4.Profile = sketch11
pocket4.setExpression("Length", "Params.pocket4_length")

sketch12 = body.newObject("Sketcher::SketchObject", "Sketch011")
sketch12.AttachmentSupport = (doc.getObject("YZ_Plane"), [""])
sketch12.MapMode = "FlatFace"
sketch12.AttachmentOffset = App.Placement(Vector(0, 0, 11), App.Rotation())
add_polygon(sketch12, [(13.7, 9.5), (0, 9.5), (0, 7.4), (12.4, 7.4)])
sketch12.addGeometry(Part.LineSegment(Vector(0, 9.5, 0), Vector(13.7, 9.5, 0)), True)
sketch12.addConstraint([
    Sketcher.Constraint("Horizontal", 0),
    Sketcher.Constraint("Vertical", 1),
    Sketcher.Constraint("Horizontal", 2),
    Sketcher.Constraint("Horizontal", 4),
    Sketcher.Constraint("Coincident", 4, 1, 0, 2),
    Sketcher.Constraint("PointOnObject", 0, 2, -2),
    Sketcher.Constraint("Equal", 0, 4),
    Sketcher.Constraint("Angle", 3, Q("59 deg")),
    Sketcher.Constraint("DistanceX", 2, 1, 2, 2, Q("12.4 mm")),
    Sketcher.Constraint("DistanceY", 1, 2, 1, 1, Q("2.1 mm")),
    Sketcher.Constraint("DistanceY", -1, 1, 0, 2, Q("9.5 mm")),
])
sketch12.setExpression("Constraints[12]", "Params.sketch12_width")
sketch12.setExpression("Constraints[13]", "Params.sketch12_height")
groove2 = body.newObject("PartDesign::Groove", "Groove001")
groove2.Profile = sketch12
groove2.ReferenceAxis = (sketch12, ["Axis0"])
groove2.setExpression("Angle", "Params.groove2_angle")
doc.recompute()

linearpattern2 = body.newObject("PartDesign::LinearPattern", "LinearPattern001")
linearpattern2.Originals = [groove2]
linearpattern2.Direction = (doc.getObject("X_Axis"), [""])
linearpattern2.Mode = "offset"
linearpattern2.setExpression("Offset", "Params.linearpattern2_pitch")
linearpattern2.Occurrences = 2
body.Tip = linearpattern2

sketch13 = body.newObject("Sketcher::SketchObject", "Sketch012")
sketch13.AttachmentSupport = (doc.getObject("YZ_Plane"), [""])
sketch13.MapMode = "FlatFace"
add_polygon(sketch13, [(25, 0), (17, 0), (17, 0.5), (25, 0.5)])
add_polygon(sketch13, [(33.5, 16.5), (28.5, 16.5), (28.5, 17), (33.5, 17)])
add_polygon(sketch13, [(13.5, 16.5), (8.5, 16.5), (8.5, 17), (13.5, 17)])
sketch13.addConstraint([
    Sketcher.Constraint("Horizontal", 0),
    Sketcher.Constraint("Vertical", 1),
    Sketcher.Constraint("Horizontal", 2),
    Sketcher.Constraint("Vertical", 3),
    Sketcher.Constraint("Horizontal", 4),
    Sketcher.Constraint("Vertical", 5),
    Sketcher.Constraint("Horizontal", 6),
    Sketcher.Constraint("Vertical", 7),
    Sketcher.Constraint("Horizontal", 8),
    Sketcher.Constraint("Vertical", 9),
    Sketcher.Constraint("Horizontal", 10),
    Sketcher.Constraint("Vertical", 11),
    Sketcher.Constraint("PointOnObject", 0, 2, -1),
    Sketcher.Constraint("Horizontal", 7, 2, 8, 2),
    Sketcher.Constraint("Horizontal", 6, 2, 9, 2),
    Sketcher.Constraint("Equal", 6, 8),
    Sketcher.Constraint("Equal", 3, 5),
    Sketcher.Constraint("DistanceX", 0, 2, 0, 1, Q("8 mm")),
    Sketcher.Constraint("DistanceX", 4, 2, 4, 1, Q("5 mm")),
    Sketcher.Constraint("DistanceY", 1, 1, 1, 2, Q("0.5 mm")),
    Sketcher.Constraint("DistanceX", -1, 1, 0, 2, Q("17 mm")),
    Sketcher.Constraint("DistanceY", -1, 1, 5, 2, Q("17 mm")),
    Sketcher.Constraint("DistanceX", 8, 2, 4, 2, Q("20 mm")),
    Sketcher.Constraint("DistanceX", -1, 1, 4, 2, Q("28.5 mm")),
])
sketch13.setExpression("Constraints[29]", "Params.sketch13_width")
sketch13.setExpression("Constraints[30]", "Params.sketch13_width2")
sketch13.setExpression("Constraints[31]", "Params.sketch13_height")
pocket5 = body.newObject("PartDesign::Pocket", "Pocket004")
pocket5.Profile = sketch13
pocket5.setExpression("Length", "Params.pocket5_length")
pocket5.Reversed = True

sketch14 = body.newObject("Sketcher::SketchObject", "Sketch013")
sketch14.AttachmentSupport = (doc.getObject("YZ_Plane"), [""])
sketch14.MapMode = "FlatFace"
sketch14.AttachmentOffset = App.Placement(Vector(0, 0, 18), App.Rotation())
add_polygon(sketch14, [(21, 0), (21, 17), (17.8, 17), (17.8, 14), (19.3, 14), (19.3, 0)])
sketch14.addGeometry(Part.LineSegment(Vector(21, 17, 0), Vector(21, 0, 0)), True)
sketch14.addConstraint([
    Sketcher.Constraint("Vertical", 0),
    Sketcher.Constraint("Horizontal", 1),
    Sketcher.Constraint("Vertical", 2),
    Sketcher.Constraint("Horizontal", 3),
    Sketcher.Constraint("Vertical", 4),
    Sketcher.Constraint("Horizontal", 5),
    Sketcher.Constraint("Vertical", 6),
    Sketcher.Constraint("Coincident", 6, 1, 0, 2),
    Sketcher.Constraint("PointOnObject", 4, 2, -1),
    Sketcher.Constraint("PointOnObject", 6, 2, -1),
    Sketcher.Constraint("DistanceY", 0, 1, 0, 2, Q("17 mm")),
    Sketcher.Constraint("DistanceY", 2, 2, 2, 1, Q("3 mm")),
    Sketcher.Constraint("DistanceX", 5, 1, 5, 2, Q("1.7 mm")),
    Sketcher.Constraint("DistanceX", -1, 1, 0, 2, Q("21 mm")),
    Sketcher.Constraint("DistanceX", 1, 2, 1, 1, Q("3.25 mm")),
])
sketch14.setExpression("Constraints[16]", "Params.sketch14_height")
sketch14.setExpression("Constraints[17]", "Params.sketch14_height2")
sketch14.setExpression("Constraints[18]", "Params.sketch14_width")
sketch14.setExpression("Constraints[20]", "Params.sketch14_width2")
groove3 = body.newObject("PartDesign::Groove", "Groove002")
groove3.Profile = sketch14
groove3.ReferenceAxis = (sketch14, ["Axis0"])
groove3.setExpression("Angle", "Params.groove3_angle")
doc.recompute()

datumline = body.newObject("PartDesign::Line", "DatumLine")
datumline.Placement = App.Placement(Vector(0, 0, 0), App.Rotation(Vector(0, 0, 1), Vector(0.507020127, 0.861934215, 0)))
linearpattern3 = body.newObject("PartDesign::LinearPattern", "LinearPattern002")
linearpattern3.Originals = [groove3]
linearpattern3.Direction = (datumline, [""])
linearpattern3.Mode = "offset"
linearpattern3.setExpression("Offset", "Params.linearpattern3_pitch")
linearpattern3.Occurrences = 2
body.Tip = linearpattern3
doc.recompute()

datumline2 = body.newObject("PartDesign::Line", "DatumLine001")
datumline2.Placement = App.Placement(Vector(0, 0, 0), App.Rotation(Vector(0, 0, 1), Vector(0.507020127, -0.861934215, 0)))
linearpattern4 = body.newObject("PartDesign::LinearPattern", "LinearPattern003")
linearpattern4.Originals = [groove3]
linearpattern4.Direction = (datumline2, [""])
linearpattern4.Mode = "offset"
linearpattern4.setExpression("Offset", "Params.linearpattern4_pitch")
linearpattern4.Occurrences = 2
body.Tip = linearpattern4
doc.recompute()

linearpattern5 = body.newObject("PartDesign::LinearPattern", "LinearPattern004")
linearpattern5.Originals = [groove3]
linearpattern5.Direction = (doc.getObject("X_Axis"), [""])
linearpattern5.Mode = "offset"
linearpattern5.setExpression("Offset", "Params.linearpattern5_pitch")
linearpattern5.Occurrences = 2
body.Tip = linearpattern5

sketch15 = body.newObject("Sketcher::SketchObject", "Sketch014")
sketch15.AttachmentSupport = (doc.getObject("XY_Plane"), [""])
sketch15.MapMode = "FlatFace"
sketch15.addGeometry([
    Part.Circle(Vector(28, 38, 0), Vector(0, 0, 1), 3.5),
    Part.Circle(Vector(18, 21, 0), Vector(0, 0, 1), 3.5),
    Part.Circle(Vector(38, 21, 0), Vector(0, 0, 1), 3.5),
    Part.Circle(Vector(28, 4, 0), Vector(0, 0, 1), 3.5),
], False)
sketch15.addConstraint([
    Sketcher.Constraint("Equal", 0, 1),
    Sketcher.Constraint("Equal", 1, 2),
    Sketcher.Constraint("Equal", 2, 3),
    Sketcher.Constraint("Horizontal", 1, 3, 2, 3),
    Sketcher.Constraint("Vertical", 0, 3, 3, 3),
    Sketcher.Constraint("Diameter", 0, Q("7 mm")),
    Sketcher.Constraint("DistanceX", -1, 1, 0, 3, Q("28 mm")),
    Sketcher.Constraint("DistanceY", -1, 1, 0, 3, Q("38 mm")),
    Sketcher.Constraint("DistanceX", -1, 1, 1, 3, Q("18 mm")),
    Sketcher.Constraint("DistanceY", -1, 1, 1, 3, Q("21 mm")),
    Sketcher.Constraint("DistanceX", -1, 1, 2, 3, Q("38 mm")),
    Sketcher.Constraint("DistanceY", -1, 1, 3, 3, Q("4 mm")),
])
sketch15.setExpression("Constraints[5]", "Params.sketch15_diameter")
pocket6 = body.newObject("PartDesign::Pocket", "Pocket005")
pocket6.Profile = sketch15
pocket6.setExpression("Length", "Params.pocket6_length")
pocket6.Reversed = True

doc.recompute()
